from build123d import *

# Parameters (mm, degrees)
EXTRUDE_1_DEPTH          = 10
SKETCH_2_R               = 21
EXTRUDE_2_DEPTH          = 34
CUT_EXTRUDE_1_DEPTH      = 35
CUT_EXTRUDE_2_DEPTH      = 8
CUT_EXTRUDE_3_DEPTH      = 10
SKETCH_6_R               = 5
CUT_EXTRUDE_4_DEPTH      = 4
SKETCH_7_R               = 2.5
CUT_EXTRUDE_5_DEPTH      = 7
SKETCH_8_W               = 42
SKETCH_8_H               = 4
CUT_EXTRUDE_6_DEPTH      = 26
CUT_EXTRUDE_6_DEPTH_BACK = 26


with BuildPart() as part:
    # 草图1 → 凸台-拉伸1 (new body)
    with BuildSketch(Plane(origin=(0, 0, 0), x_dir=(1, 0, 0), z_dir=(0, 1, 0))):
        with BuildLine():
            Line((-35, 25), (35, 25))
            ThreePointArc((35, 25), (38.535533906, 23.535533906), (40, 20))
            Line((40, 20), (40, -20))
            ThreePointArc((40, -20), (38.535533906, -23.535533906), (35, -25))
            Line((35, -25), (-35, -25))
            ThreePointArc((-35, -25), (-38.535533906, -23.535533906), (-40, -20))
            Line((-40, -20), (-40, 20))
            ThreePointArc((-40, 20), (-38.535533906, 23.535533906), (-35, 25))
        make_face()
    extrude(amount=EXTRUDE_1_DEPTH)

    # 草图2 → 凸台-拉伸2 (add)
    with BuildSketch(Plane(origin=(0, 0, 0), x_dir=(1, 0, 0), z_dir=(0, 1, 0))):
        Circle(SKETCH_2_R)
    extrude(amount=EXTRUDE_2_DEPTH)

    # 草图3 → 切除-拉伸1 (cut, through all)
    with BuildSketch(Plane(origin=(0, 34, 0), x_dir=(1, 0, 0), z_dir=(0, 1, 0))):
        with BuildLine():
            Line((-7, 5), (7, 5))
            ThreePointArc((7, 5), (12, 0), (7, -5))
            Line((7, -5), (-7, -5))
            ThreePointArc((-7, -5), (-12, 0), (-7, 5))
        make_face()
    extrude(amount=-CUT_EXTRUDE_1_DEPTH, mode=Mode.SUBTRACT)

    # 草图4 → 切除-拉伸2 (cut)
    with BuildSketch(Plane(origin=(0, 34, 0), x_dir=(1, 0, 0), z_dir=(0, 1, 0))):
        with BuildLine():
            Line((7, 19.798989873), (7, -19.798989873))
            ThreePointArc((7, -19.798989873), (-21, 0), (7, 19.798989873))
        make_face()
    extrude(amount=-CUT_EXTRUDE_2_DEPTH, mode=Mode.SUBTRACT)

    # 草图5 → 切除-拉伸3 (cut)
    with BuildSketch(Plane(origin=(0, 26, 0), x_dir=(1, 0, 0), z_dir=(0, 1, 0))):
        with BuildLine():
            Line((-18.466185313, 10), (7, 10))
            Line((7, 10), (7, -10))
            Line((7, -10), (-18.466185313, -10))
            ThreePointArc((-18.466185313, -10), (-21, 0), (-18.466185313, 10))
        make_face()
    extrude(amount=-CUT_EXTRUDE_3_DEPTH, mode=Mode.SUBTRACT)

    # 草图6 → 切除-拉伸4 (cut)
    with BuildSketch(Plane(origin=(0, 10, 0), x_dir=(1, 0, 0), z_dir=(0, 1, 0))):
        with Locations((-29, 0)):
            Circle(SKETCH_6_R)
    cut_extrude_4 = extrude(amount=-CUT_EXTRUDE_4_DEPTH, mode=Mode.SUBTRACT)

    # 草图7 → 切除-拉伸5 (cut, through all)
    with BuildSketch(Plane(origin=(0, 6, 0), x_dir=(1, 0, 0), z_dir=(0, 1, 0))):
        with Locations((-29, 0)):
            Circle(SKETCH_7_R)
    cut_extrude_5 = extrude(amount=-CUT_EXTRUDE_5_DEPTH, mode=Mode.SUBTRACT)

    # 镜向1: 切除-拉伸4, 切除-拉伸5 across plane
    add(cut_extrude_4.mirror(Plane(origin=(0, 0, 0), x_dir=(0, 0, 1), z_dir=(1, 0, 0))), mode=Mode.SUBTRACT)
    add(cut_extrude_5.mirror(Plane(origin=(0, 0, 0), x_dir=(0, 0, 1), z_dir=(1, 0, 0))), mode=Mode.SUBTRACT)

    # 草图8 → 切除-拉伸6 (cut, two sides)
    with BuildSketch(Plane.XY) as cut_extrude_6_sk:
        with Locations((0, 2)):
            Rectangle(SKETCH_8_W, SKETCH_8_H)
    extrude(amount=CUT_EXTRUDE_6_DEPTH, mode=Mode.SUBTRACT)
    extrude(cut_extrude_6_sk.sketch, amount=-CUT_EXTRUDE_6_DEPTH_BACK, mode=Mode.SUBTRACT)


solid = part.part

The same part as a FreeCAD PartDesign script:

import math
import FreeCAD as App
import Part
import Sketcher

V = App.Vector
Q = App.Units.Quantity


def add_polygon(sketch, points):
    """Adds a closed chain of lines whose ends are joined by coincident constraints."""
    first, n = sketch.GeometryCount, len(points)
    for a, b in zip(points, points[1:] + points[:1]):
        sketch.addGeometry(Part.LineSegment(App.Vector(*a, 0), App.Vector(*b, 0)), False)
    for i in range(n):
        sketch.addConstraint(Sketcher.Constraint("Coincident", first + i, 2, first + (i + 1) % n, 1))

doc = App.newDocument("Part")
body = doc.addObject("PartDesign::Body", "Body")

# Sketch on XZ plane
sketch1 = body.newObject("Sketcher::SketchObject", "Sketch")
sketch1.AttachmentSupport = (doc.getObject("XZ_Plane"), [""])
sketch1.MapMode = "FlatFace"
sketch1.addGeometry([
    Part.LineSegment(V(35, -25, 0), V(-35, -25, 0)),  # 0
    Part.ArcOfCircle(Part.Circle(V(-35, -20, 0), V(0, 0, 1), 5), math.radians(180), math.radians(270)),  # 1
    Part.LineSegment(V(-40, -20, 0), V(-40, 20, 0)),  # 2
    Part.ArcOfCircle(Part.Circle(V(-35, 20, 0), V(0, 0, 1), 5), math.radians(90), math.radians(180)),  # 3
    Part.LineSegment(V(-35, 25, 0), V(35, 25, 0)),  # 4
    Part.ArcOfCircle(Part.Circle(V(35, 20, 0), V(0, 0, 1), 5), math.radians(0), math.radians(90)),  # 5
    Part.LineSegment(V(40, 20, 0), V(40, -20, 0)),  # 6
    Part.ArcOfCircle(Part.Circle(V(35, -20, 0), V(0, 0, 1), 5), math.radians(-90), math.radians(0)),  # 7
], False)
sketch1.addConstraint([
    Sketcher.Constraint("Tangent", 0, 2, 1, 2),
    Sketcher.Constraint("Tangent", 1, 1, 2, 1),
    Sketcher.Constraint("Tangent", 2, 2, 3, 2),
    Sketcher.Constraint("Tangent", 3, 1, 4, 1),
    Sketcher.Constraint("Tangent", 4, 2, 5, 2),
    Sketcher.Constraint("Tangent", 5, 1, 6, 1),
    Sketcher.Constraint("Tangent", 6, 2, 7, 2),
    Sketcher.Constraint("Tangent", 7, 1, 0, 1),
    Sketcher.Constraint("Horizontal", 0),
    Sketcher.Constraint("Vertical", 2),
    Sketcher.Constraint("Horizontal", 4),
    Sketcher.Constraint("Vertical", 6),
    Sketcher.Constraint("Equal", 1, 3),
    Sketcher.Constraint("Equal", 3, 5),
    Sketcher.Constraint("Equal", 5, 7),
    Sketcher.Constraint("Symmetric", 1, 3, 5, 3, -1, 1),
    Sketcher.Constraint("Radius", 1, Q("5 mm")),
    Sketcher.Constraint("DistanceX", 0, 2, 0, 1, Q("70 mm")),
    Sketcher.Constraint("DistanceY", 2, 1, 2, 2, Q("40 mm")),
])
pad1 = body.newObject("PartDesign::Pad", "Pad")
pad1.Profile = sketch1
pad1.Length = 10
pad1.Reversed = True

# Sketch on XZ plane
sketch2 = body.newObject("Sketcher::SketchObject", "Sketch001")
sketch2.AttachmentSupport = (doc.getObject("XZ_Plane"), [""])
sketch2.MapMode = "FlatFace"
sketch2.addGeometry(Part.Circle(V(0, 0, 0), V(0, 0, 1), 21), False)
sketch2.addConstraint([
    Sketcher.Constraint("Coincident", 0, 3, -1, 1),
    Sketcher.Constraint("Diameter", 0, Q("42 mm")),
])
pad2 = body.newObject("PartDesign::Pad", "Pad001")
pad2.Profile = sketch2
pad2.Length = 34
pad2.Reversed = True

# Sketch on XZ plane
sketch3 = body.newObject("Sketcher::SketchObject", "Sketch002")
sketch3.AttachmentSupport = (doc.getObject("XZ_Plane"), [""])
sketch3.MapMode = "FlatFace"
sketch3.AttachmentOffset = App.Placement(V(0, 0, -34), App.Rotation())
sketch3.addGeometry([
    Part.LineSegment(V(7, -5, 0), V(-7, -5, 0)),
    Part.ArcOfCircle(Part.Circle(V(-7, 0, 0), V(0, 0, 1), 5), math.radians(90), math.radians(270)),
    Part.LineSegment(V(-7, 5, 0), V(7, 5, 0)),
    Part.ArcOfCircle(Part.Circle(V(7, 0, 0), V(0, 0, 1), 5), math.radians(-90), math.radians(90)),
], False)
sketch3.addConstraint([
    Sketcher.Constraint("Tangent", 0, 2, 1, 2),
    Sketcher.Constraint("Tangent", 1, 1, 2, 1),
    Sketcher.Constraint("Tangent", 2, 2, 3, 2),
    Sketcher.Constraint("Tangent", 3, 1, 0, 1),
    Sketcher.Constraint("Horizontal", 0),
    Sketcher.Constraint("Horizontal", 2),
    Sketcher.Constraint("Symmetric", 1, 3, 3, 3, -1, 1),
    Sketcher.Constraint("Radius", 1, Q("5 mm")),
    Sketcher.Constraint("DistanceX", 0, 2, 0, 1, Q("14 mm")),
])
pocket1 = body.newObject("PartDesign::Pocket", "Pocket")
pocket1.Profile = sketch3
pocket1.Type = "ThroughAll"
pocket1.Reversed = True

# Sketch on XZ plane
sketch4 = body.newObject("Sketcher::SketchObject", "Sketch003")
sketch4.AttachmentSupport = (doc.getObject("XZ_Plane"), [""])
sketch4.MapMode = "FlatFace"
sketch4.AttachmentOffset = App.Placement(V(0, 0, -34), App.Rotation())
sketch4.addGeometry([
    Part.LineSegment(V(7, 20, 0), V(7, -20, 0)),
    Part.ArcOfCircle(Part.Circle(V(0, 0, 0), V(0, 0, 1), 21), math.radians(71), math.radians(289)),
], False)
sketch4.addConstraint([
    Sketcher.Constraint("Coincident", 0, 1, 1, 1),
    Sketcher.Constraint("Coincident", 1, 2, 0, 2),
    Sketcher.Constraint("Vertical", 0),
    Sketcher.Constraint("Coincident", 1, 3, -1, 1),
    Sketcher.Constraint("Radius", 1, Q("21 mm")),
    Sketcher.Constraint("DistanceX", -1, 1, 0, 1, Q("7 mm")),
])
pocket2 = body.newObject("PartDesign::Pocket", "Pocket001")
pocket2.Profile = sketch4
pocket2.Length = 8
pocket2.Reversed = True

# Sketch on XZ plane
sketch5 = body.newObject("Sketcher::SketchObject", "Sketch004")
sketch5.AttachmentSupport = (doc.getObject("XZ_Plane"), [""])
sketch5.MapMode = "FlatFace"
sketch5.AttachmentOffset = App.Placement(V(0, 0, -26), App.Rotation())
sketch5.addGeometry([
    Part.LineSegment(V(7, -10, 0), V(-18, -10, 0)),
    Part.ArcOfCircle(Part.Circle(V(0, 0, 0), V(0, 0, 1), 21), math.radians(152), math.radians(208)),
    Part.LineSegment(V(-18, 10, 0), V(7, 10, 0)),
    Part.LineSegment(V(7, 10, 0), V(7, -10, 0)),
], False)
sketch5.addConstraint([
    Sketcher.Constraint("Coincident", 0, 2, 1, 2),
    Sketcher.Constraint("Coincident", 1, 1, 2, 1),
    Sketcher.Constraint("Coincident", 2, 2, 3, 1),
    Sketcher.Constraint("Coincident", 3, 2, 0, 1),
    Sketcher.Constraint("Horizontal", 0),
    Sketcher.Constraint("Horizontal", 2),
    Sketcher.Constraint("Vertical", 3),
    Sketcher.Constraint("Coincident", 1, 3, -1, 1),
    Sketcher.Constraint("Vertical", 0, 2, 1, 1),
    Sketcher.Constraint("Radius", 1, Q("21 mm")),
    Sketcher.Constraint("DistanceY", 3, 2, 3, 1, Q("20 mm")),
    Sketcher.Constraint("DistanceX", -1, 1, 2, 2, Q("7 mm")),
])
pocket3 = body.newObject("PartDesign::Pocket", "Pocket002")
pocket3.Profile = sketch5
pocket3.Length = 10
pocket3.Reversed = True

# Sketch on XZ plane
sketch6 = body.newObject("Sketcher::SketchObject", "Sketch005")
sketch6.AttachmentSupport = (doc.getObject("XZ_Plane"), [""])
sketch6.MapMode = "FlatFace"
sketch6.AttachmentOffset = App.Placement(V(0, 0, -10), App.Rotation())
sketch6.addGeometry(Part.Circle(V(-29, 0, 0), V(0, 0, 1), 5), False)
sketch6.addConstraint([
    Sketcher.Constraint("PointOnObject", 0, 3, -1),
    Sketcher.Constraint("Diameter", 0, Q("10 mm")),
    Sketcher.Constraint("DistanceX", 0, 3, -1, 1, Q("29 mm")),
])
pocket4 = body.newObject("PartDesign::Pocket", "Pocket003")
pocket4.Profile = sketch6
pocket4.Length = 4
pocket4.Reversed = True

# Sketch on XZ plane
sketch7 = body.newObject("Sketcher::SketchObject", "Sketch006")
sketch7.AttachmentSupport = (doc.getObject("XZ_Plane"), [""])
sketch7.MapMode = "FlatFace"
sketch7.AttachmentOffset = App.Placement(V(0, 0, -6), App.Rotation())
sketch7.addGeometry(Part.Circle(V(-29, 0, 0), V(0, 0, 1), 2.5), False)
sketch7.addConstraint([
    Sketcher.Constraint("PointOnObject", 0, 3, -1),
    Sketcher.Constraint("Diameter", 0, Q("5 mm")),
    Sketcher.Constraint("DistanceX", 0, 3, -1, 1, Q("29 mm")),
])
pocket5 = body.newObject("PartDesign::Pocket", "Pocket004")
pocket5.Profile = sketch7
pocket5.Type = "ThroughAll"
pocket5.Reversed = True
doc.recompute()

mirrored = body.newObject("PartDesign::Mirrored", "Mirrored")
mirrored.Originals = [pocket4, pocket5]
mirrored.MirrorPlane = (doc.getObject("YZ_Plane"), [""])
body.Tip = mirrored

# Sketch on XY plane
sketch8 = body.newObject("Sketcher::SketchObject", "Sketch007")
sketch8.AttachmentSupport = (doc.getObject("XY_Plane"), [""])
sketch8.MapMode = "FlatFace"
add_polygon(sketch8, [(-21, 4), (-21, 0), (21, 0), (21, 4)])  # lines 0-3
sketch8.addConstraint([
    Sketcher.Constraint("Vertical", 0),
    Sketcher.Constraint("Horizontal", 1),
    Sketcher.Constraint("Vertical", 2),
    Sketcher.Constraint("Horizontal", 3),
    Sketcher.Constraint("Symmetric", 0, 2, 1, 2, -1, 1),
    Sketcher.Constraint("DistanceX", 1, 1, 1, 2, Q("42 mm")),
    Sketcher.Constraint("DistanceY", 0, 2, 0, 1, Q("4 mm")),
])
pocket6 = body.newObject("PartDesign::Pocket", "Pocket005")
pocket6.Profile = sketch8
pocket6.Type = "ThroughAll"
pocket6.Midplane = True

doc.recompute()
